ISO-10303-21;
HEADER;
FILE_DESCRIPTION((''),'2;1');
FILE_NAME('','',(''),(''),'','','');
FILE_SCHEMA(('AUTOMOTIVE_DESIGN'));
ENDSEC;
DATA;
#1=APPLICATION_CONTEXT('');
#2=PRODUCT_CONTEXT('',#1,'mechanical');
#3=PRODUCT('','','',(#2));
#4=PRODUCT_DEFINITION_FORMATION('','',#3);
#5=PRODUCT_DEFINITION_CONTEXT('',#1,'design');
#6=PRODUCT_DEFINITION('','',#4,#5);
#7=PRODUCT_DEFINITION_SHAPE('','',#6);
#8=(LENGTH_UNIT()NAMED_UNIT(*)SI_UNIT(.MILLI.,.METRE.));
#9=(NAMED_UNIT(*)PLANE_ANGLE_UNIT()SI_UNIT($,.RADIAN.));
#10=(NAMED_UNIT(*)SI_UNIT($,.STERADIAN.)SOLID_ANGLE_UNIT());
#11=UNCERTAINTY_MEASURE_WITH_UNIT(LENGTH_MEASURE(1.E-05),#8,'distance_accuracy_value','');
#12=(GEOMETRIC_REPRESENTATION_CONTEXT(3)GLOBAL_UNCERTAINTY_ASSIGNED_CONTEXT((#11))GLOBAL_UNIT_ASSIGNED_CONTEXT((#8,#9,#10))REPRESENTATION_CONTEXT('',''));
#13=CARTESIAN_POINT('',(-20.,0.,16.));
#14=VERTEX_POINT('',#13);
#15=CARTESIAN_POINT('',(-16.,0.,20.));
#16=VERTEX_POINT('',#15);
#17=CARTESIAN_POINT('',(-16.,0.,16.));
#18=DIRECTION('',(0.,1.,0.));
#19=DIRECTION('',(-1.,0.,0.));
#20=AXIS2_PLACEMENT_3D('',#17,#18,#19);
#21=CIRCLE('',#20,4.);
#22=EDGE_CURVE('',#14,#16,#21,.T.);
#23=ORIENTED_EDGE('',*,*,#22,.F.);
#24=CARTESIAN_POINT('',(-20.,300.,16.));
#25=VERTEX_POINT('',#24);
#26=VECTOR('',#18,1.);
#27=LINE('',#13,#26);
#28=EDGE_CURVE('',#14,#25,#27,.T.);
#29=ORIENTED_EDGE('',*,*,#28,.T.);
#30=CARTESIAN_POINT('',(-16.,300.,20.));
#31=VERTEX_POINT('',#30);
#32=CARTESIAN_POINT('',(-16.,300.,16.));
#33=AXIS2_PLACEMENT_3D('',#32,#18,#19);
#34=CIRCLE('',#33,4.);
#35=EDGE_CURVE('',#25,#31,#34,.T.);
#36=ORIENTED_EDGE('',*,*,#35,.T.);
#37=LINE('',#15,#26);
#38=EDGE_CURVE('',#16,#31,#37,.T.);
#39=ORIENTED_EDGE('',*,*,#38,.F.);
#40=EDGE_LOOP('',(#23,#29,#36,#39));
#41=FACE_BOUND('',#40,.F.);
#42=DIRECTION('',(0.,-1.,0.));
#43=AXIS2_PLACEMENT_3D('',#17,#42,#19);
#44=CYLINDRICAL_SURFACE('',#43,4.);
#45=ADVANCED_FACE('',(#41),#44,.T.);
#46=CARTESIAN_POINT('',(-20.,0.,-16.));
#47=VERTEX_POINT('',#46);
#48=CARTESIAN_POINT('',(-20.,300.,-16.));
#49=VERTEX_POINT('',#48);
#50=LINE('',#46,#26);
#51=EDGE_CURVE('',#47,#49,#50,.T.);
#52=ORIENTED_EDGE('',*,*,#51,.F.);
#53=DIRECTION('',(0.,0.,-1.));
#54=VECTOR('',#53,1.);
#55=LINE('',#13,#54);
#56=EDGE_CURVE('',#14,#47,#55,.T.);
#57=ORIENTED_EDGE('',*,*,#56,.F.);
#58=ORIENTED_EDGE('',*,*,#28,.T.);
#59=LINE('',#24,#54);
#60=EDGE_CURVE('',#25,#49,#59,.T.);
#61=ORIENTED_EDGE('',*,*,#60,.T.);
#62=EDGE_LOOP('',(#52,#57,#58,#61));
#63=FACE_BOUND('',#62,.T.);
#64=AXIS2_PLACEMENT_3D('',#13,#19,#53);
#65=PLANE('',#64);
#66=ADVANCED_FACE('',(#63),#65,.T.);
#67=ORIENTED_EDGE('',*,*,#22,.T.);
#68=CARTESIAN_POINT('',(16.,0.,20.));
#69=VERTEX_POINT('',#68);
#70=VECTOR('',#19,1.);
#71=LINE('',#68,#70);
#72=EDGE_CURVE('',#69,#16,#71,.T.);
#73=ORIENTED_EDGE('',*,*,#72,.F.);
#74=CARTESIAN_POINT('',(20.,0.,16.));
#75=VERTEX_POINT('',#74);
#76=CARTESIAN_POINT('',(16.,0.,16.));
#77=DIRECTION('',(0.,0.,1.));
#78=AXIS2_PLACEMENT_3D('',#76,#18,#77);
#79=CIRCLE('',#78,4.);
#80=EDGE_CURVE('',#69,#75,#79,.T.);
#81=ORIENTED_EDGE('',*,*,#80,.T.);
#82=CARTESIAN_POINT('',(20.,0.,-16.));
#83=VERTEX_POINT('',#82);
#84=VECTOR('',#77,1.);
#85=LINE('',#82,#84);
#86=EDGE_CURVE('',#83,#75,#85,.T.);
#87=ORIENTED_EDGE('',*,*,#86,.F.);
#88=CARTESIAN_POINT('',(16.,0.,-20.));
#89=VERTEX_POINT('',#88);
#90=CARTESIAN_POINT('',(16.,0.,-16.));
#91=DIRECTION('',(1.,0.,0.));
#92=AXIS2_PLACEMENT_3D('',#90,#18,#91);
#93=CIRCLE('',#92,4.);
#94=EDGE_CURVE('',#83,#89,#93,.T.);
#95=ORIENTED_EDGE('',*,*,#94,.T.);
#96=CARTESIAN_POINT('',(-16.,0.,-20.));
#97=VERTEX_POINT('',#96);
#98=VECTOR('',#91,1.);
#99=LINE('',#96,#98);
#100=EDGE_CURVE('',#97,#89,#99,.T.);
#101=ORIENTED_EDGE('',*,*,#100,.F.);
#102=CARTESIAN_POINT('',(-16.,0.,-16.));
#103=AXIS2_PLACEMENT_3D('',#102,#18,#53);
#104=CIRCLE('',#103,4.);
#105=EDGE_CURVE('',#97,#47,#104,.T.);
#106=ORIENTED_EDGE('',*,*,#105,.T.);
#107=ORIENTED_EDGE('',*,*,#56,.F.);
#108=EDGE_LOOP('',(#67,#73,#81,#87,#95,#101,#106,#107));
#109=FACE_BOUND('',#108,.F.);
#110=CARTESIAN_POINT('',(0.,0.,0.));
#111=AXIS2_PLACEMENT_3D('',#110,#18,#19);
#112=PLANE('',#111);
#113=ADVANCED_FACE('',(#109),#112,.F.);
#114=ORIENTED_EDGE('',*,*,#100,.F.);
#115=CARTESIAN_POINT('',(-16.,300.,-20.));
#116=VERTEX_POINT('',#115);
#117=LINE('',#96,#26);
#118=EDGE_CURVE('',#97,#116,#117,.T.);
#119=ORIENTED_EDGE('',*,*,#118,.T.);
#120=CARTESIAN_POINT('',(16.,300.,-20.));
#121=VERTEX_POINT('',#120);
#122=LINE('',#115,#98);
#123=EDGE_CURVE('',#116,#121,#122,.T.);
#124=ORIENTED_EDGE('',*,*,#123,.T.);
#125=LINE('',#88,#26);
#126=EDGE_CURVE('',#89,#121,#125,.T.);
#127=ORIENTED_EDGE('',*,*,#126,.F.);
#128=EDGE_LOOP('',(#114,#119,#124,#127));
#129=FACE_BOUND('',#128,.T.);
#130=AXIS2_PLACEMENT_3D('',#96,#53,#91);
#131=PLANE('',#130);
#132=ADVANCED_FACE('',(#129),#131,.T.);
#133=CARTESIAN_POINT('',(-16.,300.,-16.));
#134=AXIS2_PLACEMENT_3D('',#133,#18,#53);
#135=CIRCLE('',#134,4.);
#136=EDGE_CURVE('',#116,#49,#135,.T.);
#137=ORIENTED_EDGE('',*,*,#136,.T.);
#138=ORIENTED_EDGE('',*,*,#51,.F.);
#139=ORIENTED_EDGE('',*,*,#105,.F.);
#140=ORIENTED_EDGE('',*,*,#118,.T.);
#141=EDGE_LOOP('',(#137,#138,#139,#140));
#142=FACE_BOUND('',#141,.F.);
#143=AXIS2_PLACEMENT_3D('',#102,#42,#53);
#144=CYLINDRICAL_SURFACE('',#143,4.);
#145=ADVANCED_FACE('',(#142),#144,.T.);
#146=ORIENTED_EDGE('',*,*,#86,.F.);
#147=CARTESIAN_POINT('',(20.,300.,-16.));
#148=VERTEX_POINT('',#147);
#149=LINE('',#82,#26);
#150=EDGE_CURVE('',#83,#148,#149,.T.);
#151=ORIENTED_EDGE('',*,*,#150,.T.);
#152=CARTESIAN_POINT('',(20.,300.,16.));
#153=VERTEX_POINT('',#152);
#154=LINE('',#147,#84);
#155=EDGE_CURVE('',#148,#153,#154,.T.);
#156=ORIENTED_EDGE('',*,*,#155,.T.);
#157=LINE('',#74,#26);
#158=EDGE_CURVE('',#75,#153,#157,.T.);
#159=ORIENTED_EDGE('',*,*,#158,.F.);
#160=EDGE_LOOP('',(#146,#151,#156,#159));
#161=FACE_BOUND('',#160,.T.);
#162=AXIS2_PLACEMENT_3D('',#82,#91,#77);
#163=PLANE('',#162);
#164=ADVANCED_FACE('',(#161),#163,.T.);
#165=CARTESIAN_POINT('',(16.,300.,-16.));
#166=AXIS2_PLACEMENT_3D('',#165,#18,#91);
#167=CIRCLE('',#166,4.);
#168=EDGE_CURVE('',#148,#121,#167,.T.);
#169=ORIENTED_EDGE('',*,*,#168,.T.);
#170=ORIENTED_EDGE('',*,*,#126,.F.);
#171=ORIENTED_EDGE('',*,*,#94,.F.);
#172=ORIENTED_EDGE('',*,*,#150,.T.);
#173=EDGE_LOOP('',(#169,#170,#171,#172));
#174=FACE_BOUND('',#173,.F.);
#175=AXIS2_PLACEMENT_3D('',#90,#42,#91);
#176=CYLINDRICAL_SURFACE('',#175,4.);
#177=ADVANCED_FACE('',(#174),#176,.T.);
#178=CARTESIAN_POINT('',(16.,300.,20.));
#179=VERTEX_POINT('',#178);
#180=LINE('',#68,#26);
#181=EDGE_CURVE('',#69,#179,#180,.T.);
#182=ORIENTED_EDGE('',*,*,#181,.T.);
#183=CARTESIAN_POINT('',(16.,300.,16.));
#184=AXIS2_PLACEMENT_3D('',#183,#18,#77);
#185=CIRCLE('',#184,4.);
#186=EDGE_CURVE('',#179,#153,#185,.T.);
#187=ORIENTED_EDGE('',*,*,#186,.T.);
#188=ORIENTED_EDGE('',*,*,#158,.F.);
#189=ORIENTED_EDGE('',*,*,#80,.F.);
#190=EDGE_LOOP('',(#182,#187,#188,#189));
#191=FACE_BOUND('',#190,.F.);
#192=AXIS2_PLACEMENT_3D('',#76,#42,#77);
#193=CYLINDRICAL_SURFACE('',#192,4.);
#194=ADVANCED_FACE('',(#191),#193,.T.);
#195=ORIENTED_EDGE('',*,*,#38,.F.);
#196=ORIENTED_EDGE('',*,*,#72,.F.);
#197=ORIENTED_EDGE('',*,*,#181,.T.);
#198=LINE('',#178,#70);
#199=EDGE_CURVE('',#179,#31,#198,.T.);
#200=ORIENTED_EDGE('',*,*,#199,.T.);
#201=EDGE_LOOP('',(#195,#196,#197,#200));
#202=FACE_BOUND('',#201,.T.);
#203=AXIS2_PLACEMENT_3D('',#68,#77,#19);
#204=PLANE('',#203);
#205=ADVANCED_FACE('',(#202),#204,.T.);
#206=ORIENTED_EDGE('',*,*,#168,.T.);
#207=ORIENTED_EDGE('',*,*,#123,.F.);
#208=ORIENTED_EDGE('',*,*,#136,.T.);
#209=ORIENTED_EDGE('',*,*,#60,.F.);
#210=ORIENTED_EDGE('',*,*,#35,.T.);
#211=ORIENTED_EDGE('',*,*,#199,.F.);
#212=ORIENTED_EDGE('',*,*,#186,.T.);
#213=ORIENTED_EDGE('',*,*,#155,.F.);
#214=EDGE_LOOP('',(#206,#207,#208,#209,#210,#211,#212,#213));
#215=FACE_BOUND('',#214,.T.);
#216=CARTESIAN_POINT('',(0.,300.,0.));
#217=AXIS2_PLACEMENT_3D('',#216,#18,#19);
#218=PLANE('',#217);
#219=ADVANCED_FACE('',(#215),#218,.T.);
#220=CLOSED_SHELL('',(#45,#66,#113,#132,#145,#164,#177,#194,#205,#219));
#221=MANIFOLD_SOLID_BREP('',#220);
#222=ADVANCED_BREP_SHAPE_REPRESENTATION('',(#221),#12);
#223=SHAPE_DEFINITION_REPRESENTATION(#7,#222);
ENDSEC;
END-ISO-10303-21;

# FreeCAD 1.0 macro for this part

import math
import FreeCAD as App
import Part
import Sketcher
Q = App.Units.Quantity

doc = App.newDocument("Part")
body = doc.addObject("PartDesign::Body", "Body")

# Sketch on XZ plane
sketch1 = body.newObject("Sketcher::SketchObject", "Sketch")
sketch1.AttachmentSupport = (doc.getObject("XZ_Plane"), [""])
sketch1.MapMode = "FlatFace"
sketch1.addGeometry(Part.LineSegment(App.Vector(16, -20, 0), App.Vector(-16, -20, 0)), False)
sketch1.addGeometry(Part.ArcOfCircle(Part.Circle(App.Vector(-16, -16, 0), App.Vector(0, 0, 1), 4), math.radians(180), math.radians(270)), False)
sketch1.addGeometry(Part.LineSegment(App.Vector(-20, -16, 0), App.Vector(-20, 16, 0)), False)
sketch1.addGeometry(Part.ArcOfCircle(Part.Circle(App.Vector(-16, 16, 0), App.Vector(0, 0, 1), 4), math.radians(90), math.radians(180)), False)
sketch1.addGeometry(Part.LineSegment(App.Vector(-16, 20, 0), App.Vector(16, 20, 0)), False)
sketch1.addGeometry(Part.ArcOfCircle(Part.Circle(App.Vector(16, 16, 0), App.Vector(0, 0, 1), 4), math.radians(0), math.radians(90)), False)
sketch1.addGeometry(Part.LineSegment(App.Vector(20, 16, 0), App.Vector(20, -16, 0)), False)
sketch1.addGeometry(Part.ArcOfCircle(Part.Circle(App.Vector(16, -16, 0), App.Vector(0, 0, 1), 4), math.radians(-90), math.radians(0)), False)
sketch1.addConstraint(Sketcher.Constraint("Tangent", 0, 2, 1, 2))
sketch1.addConstraint(Sketcher.Constraint("Tangent", 1, 1, 2, 1))
sketch1.addConstraint(Sketcher.Constraint("Tangent", 2, 2, 3, 2))
sketch1.addConstraint(Sketcher.Constraint("Tangent", 3, 1, 4, 1))
sketch1.addConstraint(Sketcher.Constraint("Tangent", 4, 2, 5, 2))
sketch1.addConstraint(Sketcher.Constraint("Tangent", 5, 1, 6, 1))
sketch1.addConstraint(Sketcher.Constraint("Tangent", 6, 2, 7, 2))
sketch1.addConstraint(Sketcher.Constraint("Tangent", 7, 1, 0, 1))
sketch1.addConstraint(Sketcher.Constraint("Horizontal", 0))
sketch1.addConstraint(Sketcher.Constraint("Vertical", 2))
sketch1.addConstraint(Sketcher.Constraint("Horizontal", 4))
sketch1.addConstraint(Sketcher.Constraint("Vertical", 6))
sketch1.addConstraint(Sketcher.Constraint("Equal", 1, 3))
sketch1.addConstraint(Sketcher.Constraint("Equal", 3, 5))
sketch1.addConstraint(Sketcher.Constraint("Equal", 5, 7))
sketch1.addConstraint(Sketcher.Constraint("Symmetric", 1, 3, 5, 3, -1, 1))
sketch1.addConstraint(Sketcher.Constraint("Equal", 4, 2))
sketch1.addConstraint(Sketcher.Constraint("Radius", 1, Q("4 mm")))
sketch1.addConstraint(Sketcher.Constraint("DistanceX", 0, 2, 0, 1, Q("32 mm")))
pad1 = body.newObject("PartDesign::Pad", "Pad")
pad1.Profile = sketch1
pad1.Length = 300
pad1.Reversed = True

doc.recompute()
